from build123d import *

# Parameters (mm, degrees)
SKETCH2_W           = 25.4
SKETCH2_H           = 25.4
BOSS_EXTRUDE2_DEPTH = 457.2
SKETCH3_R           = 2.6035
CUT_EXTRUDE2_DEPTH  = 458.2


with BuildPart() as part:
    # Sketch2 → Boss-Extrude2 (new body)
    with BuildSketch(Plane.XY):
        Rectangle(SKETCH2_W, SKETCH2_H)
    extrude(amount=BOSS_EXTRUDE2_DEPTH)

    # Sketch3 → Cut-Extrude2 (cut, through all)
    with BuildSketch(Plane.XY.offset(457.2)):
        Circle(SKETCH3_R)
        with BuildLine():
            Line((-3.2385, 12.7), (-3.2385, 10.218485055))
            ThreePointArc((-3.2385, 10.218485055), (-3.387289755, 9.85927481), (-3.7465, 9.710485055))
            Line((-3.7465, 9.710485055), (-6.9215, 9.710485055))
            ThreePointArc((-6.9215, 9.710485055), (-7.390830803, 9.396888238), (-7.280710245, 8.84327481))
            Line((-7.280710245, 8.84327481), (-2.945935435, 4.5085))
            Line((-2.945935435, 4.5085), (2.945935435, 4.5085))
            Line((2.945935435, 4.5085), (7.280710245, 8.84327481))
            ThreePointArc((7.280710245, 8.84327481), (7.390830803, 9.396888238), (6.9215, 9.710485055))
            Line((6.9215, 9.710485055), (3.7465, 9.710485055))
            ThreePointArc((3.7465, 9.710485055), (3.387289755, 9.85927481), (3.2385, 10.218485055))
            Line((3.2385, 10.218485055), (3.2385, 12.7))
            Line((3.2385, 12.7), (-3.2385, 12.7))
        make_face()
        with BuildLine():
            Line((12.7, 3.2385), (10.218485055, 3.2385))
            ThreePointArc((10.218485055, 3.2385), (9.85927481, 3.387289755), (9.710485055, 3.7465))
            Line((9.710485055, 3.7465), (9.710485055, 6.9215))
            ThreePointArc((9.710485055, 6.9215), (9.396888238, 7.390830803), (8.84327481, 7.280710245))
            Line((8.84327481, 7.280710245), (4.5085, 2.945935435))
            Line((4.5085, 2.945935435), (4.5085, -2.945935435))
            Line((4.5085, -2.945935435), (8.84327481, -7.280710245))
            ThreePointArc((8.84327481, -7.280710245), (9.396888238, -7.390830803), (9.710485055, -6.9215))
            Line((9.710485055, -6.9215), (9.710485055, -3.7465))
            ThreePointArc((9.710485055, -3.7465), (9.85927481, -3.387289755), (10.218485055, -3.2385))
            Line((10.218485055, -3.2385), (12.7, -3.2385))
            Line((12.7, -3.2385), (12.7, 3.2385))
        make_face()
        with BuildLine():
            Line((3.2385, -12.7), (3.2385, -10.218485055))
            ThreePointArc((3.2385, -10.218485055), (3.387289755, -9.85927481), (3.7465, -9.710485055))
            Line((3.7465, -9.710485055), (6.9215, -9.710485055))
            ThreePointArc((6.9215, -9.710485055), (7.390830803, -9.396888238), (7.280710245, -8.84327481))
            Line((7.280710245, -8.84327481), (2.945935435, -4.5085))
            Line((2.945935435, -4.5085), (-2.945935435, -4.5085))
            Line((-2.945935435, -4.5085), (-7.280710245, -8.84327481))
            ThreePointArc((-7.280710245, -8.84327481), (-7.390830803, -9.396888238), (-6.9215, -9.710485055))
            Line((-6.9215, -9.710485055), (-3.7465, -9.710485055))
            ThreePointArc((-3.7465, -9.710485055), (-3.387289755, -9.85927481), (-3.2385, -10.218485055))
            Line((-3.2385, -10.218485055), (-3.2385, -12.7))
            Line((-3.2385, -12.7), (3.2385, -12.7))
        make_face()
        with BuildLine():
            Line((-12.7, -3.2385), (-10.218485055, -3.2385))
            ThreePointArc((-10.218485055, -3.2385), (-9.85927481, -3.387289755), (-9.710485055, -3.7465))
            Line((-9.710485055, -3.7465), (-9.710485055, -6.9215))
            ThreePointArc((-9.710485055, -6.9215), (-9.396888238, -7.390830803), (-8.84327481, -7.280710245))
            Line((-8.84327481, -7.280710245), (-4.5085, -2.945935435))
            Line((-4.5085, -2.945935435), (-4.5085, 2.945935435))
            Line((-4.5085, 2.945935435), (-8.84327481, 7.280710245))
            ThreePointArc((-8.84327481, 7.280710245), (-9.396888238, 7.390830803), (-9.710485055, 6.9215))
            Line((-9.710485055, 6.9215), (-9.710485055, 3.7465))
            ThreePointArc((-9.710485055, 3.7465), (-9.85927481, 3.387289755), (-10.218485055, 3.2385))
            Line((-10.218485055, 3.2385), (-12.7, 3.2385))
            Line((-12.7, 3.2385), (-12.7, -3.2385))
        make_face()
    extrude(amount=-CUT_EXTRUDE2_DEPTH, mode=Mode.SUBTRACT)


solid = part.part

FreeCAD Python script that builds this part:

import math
import FreeCAD as App
import Part
import Sketcher

V = App.Vector
Q = App.Units.Quantity


def add_polygon(sketch, points):
    """Adds a closed chain of lines whose ends are joined by coincident constraints."""
    first, n = sketch.GeometryCount, len(points)
    for a, b in zip(points, points[1:] + points[:1]):
        sketch.addGeometry(Part.LineSegment(App.Vector(*a, 0), App.Vector(*b, 0)), False)
    for i in range(n):
        sketch.addConstraint(Sketcher.Constraint("Coincident", first + i, 2, first + (i + 1) % n, 1))

doc = App.newDocument("Part")
body = doc.addObject("PartDesign::Body", "Body")

sketch1 = body.newObject("Sketcher::SketchObject", "Sketch")
sketch1.AttachmentSupport = (doc.getObject("XY_Plane"), [""])
sketch1.MapMode = "FlatFace"
add_polygon(sketch1, [(-12.7, 12.7), (-12.7, -12.7), (12.7, -12.7), (12.7, 12.7)])
sketch1.addConstraint([
    Sketcher.Constraint("Vertical", 0),
    Sketcher.Constraint("Horizontal", 1),
    Sketcher.Constraint("Vertical", 2),
    Sketcher.Constraint("Horizontal", 3),
    Sketcher.Constraint("Symmetric", 0, 2, 2, 2, -1, 1),
    Sketcher.Constraint("Equal", 3, 0),
    Sketcher.Constraint("DistanceX", 1, 1, 1, 2, Q("1 in")),
])
pad1 = body.newObject("PartDesign::Pad", "Pad")
pad1.Profile = sketch1
pad1.Length = Q("18 in")

sketch2 = body.newObject("Sketcher::SketchObject", "Sketch001")
sketch2.AttachmentSupport = (doc.getObject("XY_Plane"), [""])
sketch2.MapMode = "FlatFace"
sketch2.AttachmentOffset = App.Placement(V(0, 0, 18 * 25.4), App.Rotation())
sketch2.addGeometry([
    Part.Circle(V(0, 0, 0), V(0, 0, 1), 2.6035),
    Part.LineSegment(V(-3.2385, 12.7, 0), V(-3.2385, 10.218485, 0)),
    Part.ArcOfCircle(Part.Circle(V(-3.7465, 10.218485, 0), V(0, 0, 1), 0.508), math.radians(-90), math.radians(0)),
    Part.LineSegment(V(-3.7465, 9.710485, 0), V(-6.9215, 9.710485, 0)),
    Part.ArcOfCircle(Part.Circle(V(-6.9215, 9.202485, 0), V(0, 0, 1), 0.508), math.radians(90), math.radians(225)),
    Part.LineSegment(V(-7.28071, 8.843275, 0), V(-2.945935, 4.5085, 0)),
    Part.LineSegment(V(-2.945935, 4.5085, 0), V(2.945935, 4.5085, 0)),
    Part.LineSegment(V(2.945935, 4.5085, 0), V(7.28071, 8.843275, 0)),
    Part.ArcOfCircle(Part.Circle(V(6.9215, 9.202485, 0), V(0, 0, 1), 0.508), math.radians(-45), math.radians(90)),
    Part.LineSegment(V(6.9215, 9.710485, 0), V(3.7465, 9.710485, 0)),
    Part.ArcOfCircle(Part.Circle(V(3.7465, 10.218485, 0), V(0, 0, 1), 0.508), math.radians(180), math.radians(270)),
    Part.LineSegment(V(3.2385, 10.218485, 0), V(3.2385, 12.7, 0)),
    Part.LineSegment(V(3.2385, 12.7, 0), V(-3.2385, 12.7, 0)),
    Part.LineSegment(V(12.7, 3.2385, 0), V(10.218485, 3.2385, 0)),
    Part.ArcOfCircle(Part.Circle(V(10.218485, 3.7465, 0), V(0, 0, 1), 0.508), math.radians(180), math.radians(270)),
    Part.LineSegment(V(9.710485, 3.7465, 0), V(9.710485, 6.9215, 0)),
    Part.ArcOfCircle(Part.Circle(V(9.202485, 6.9215, 0), V(0, 0, 1), 0.508), math.radians(0), math.radians(135)),
    Part.LineSegment(V(8.843275, 7.28071, 0), V(4.5085, 2.945935, 0)),
    Part.LineSegment(V(4.5085, 2.945935, 0), V(4.5085, -2.945935, 0)),
    Part.LineSegment(V(4.5085, -2.945935, 0), V(8.843275, -7.28071, 0)),
    Part.ArcOfCircle(Part.Circle(V(9.202485, -6.9215, 0), V(0, 0, 1), 0.508), math.radians(-135), math.radians(0)),
    Part.LineSegment(V(9.710485, -6.9215, 0), V(9.710485, -3.7465, 0)),
    Part.ArcOfCircle(Part.Circle(V(10.218485, -3.7465, 0), V(0, 0, 1), 0.508), math.radians(90), math.radians(180)),
    Part.LineSegment(V(10.218485, -3.2385, 0), V(12.7, -3.2385, 0)),
    Part.LineSegment(V(12.7, -3.2385, 0), V(12.7, 3.2385, 0)),
    Part.LineSegment(V(3.2385, -12.7, 0), V(3.2385, -10.218485, 0)),
    Part.ArcOfCircle(Part.Circle(V(3.7465, -10.218485, 0), V(0, 0, 1), 0.508), math.radians(90), math.radians(180)),
    Part.LineSegment(V(3.7465, -9.710485, 0), V(6.9215, -9.710485, 0)),
    Part.ArcOfCircle(Part.Circle(V(6.9215, -9.202485, 0), V(0, 0, 1), 0.508), math.radians(-90), math.radians(45)),
    Part.LineSegment(V(7.28071, -8.843275, 0), V(2.945935, -4.5085, 0)),
    Part.LineSegment(V(2.945935, -4.5085, 0), V(-2.945935, -4.5085, 0)),
    Part.LineSegment(V(-2.945935, -4.5085, 0), V(-7.28071, -8.843275, 0)),
    Part.ArcOfCircle(Part.Circle(V(-6.9215, -9.202485, 0), V(0, 0, 1), 0.508), math.radians(135), math.radians(270)),
    Part.LineSegment(V(-6.9215, -9.710485, 0), V(-3.7465, -9.710485, 0)),
    Part.ArcOfCircle(Part.Circle(V(-3.7465, -10.218485, 0), V(0, 0, 1), 0.508), math.radians(0), math.radians(90)),
    Part.LineSegment(V(-3.2385, -10.218485, 0), V(-3.2385, -12.7, 0)),
    Part.LineSegment(V(-3.2385, -12.7, 0), V(3.2385, -12.7, 0)),
    Part.LineSegment(V(-12.7, -3.2385, 0), V(-10.218485, -3.2385, 0)),
    Part.ArcOfCircle(Part.Circle(V(-10.218485, -3.7465, 0), V(0, 0, 1), 0.508), math.radians(0), math.radians(90)),
    Part.LineSegment(V(-9.710485, -3.7465, 0), V(-9.710485, -6.9215, 0)),
    Part.ArcOfCircle(Part.Circle(V(-9.202485, -6.9215, 0), V(0, 0, 1), 0.508), math.radians(180), math.radians(315)),
    Part.LineSegment(V(-8.843275, -7.28071, 0), V(-4.5085, -2.945935, 0)),
    Part.LineSegment(V(-4.5085, -2.945935, 0), V(-4.5085, 2.945935, 0)),
    Part.LineSegment(V(-4.5085, 2.945935, 0), V(-8.843275, 7.28071, 0)),
    Part.ArcOfCircle(Part.Circle(V(-9.202485, 6.9215, 0), V(0, 0, 1), 0.508), math.radians(45), math.radians(180)),
    Part.LineSegment(V(-9.710485, 6.9215, 0), V(-9.710485, 3.7465, 0)),
    Part.ArcOfCircle(Part.Circle(V(-10.218485, 3.7465, 0), V(0, 0, 1), 0.508), math.radians(-90), math.radians(0)),
    Part.LineSegment(V(-10.218485, 3.2385, 0), V(-12.7, 3.2385, 0)),
    Part.LineSegment(V(-12.7, 3.2385, 0), V(-12.7, -3.2385, 0)),
], False)
sketch2.addConstraint([
    Sketcher.Constraint("Tangent", 1, 2, 2, 2),
    Sketcher.Constraint("Tangent", 2, 1, 3, 1),
    Sketcher.Constraint("Tangent", 3, 2, 4, 1),
    Sketcher.Constraint("Tangent", 4, 2, 5, 1),
    Sketcher.Constraint("Coincident", 5, 2, 6, 1),
    Sketcher.Constraint("Coincident", 6, 2, 7, 1),
    Sketcher.Constraint("Tangent", 7, 2, 8, 1),
    Sketcher.Constraint("Tangent", 8, 2, 9, 1),
    Sketcher.Constraint("Tangent", 9, 2, 10, 2),
    Sketcher.Constraint("Tangent", 10, 1, 11, 1),
    Sketcher.Constraint("Coincident", 11, 2, 12, 1),
    Sketcher.Constraint("Coincident", 12, 2, 1, 1),
    Sketcher.Constraint("Tangent", 13, 2, 14, 2),
    Sketcher.Constraint("Tangent", 14, 1, 15, 1),
    Sketcher.Constraint("Tangent", 15, 2, 16, 1),
    Sketcher.Constraint("Tangent", 16, 2, 17, 1),
    Sketcher.Constraint("Coincident", 17, 2, 18, 1),
    Sketcher.Constraint("Coincident", 18, 2, 19, 1),
    Sketcher.Constraint("Tangent", 19, 2, 20, 1),
    Sketcher.Constraint("Tangent", 20, 2, 21, 1),
    Sketcher.Constraint("Tangent", 21, 2, 22, 2),
    Sketcher.Constraint("Tangent", 22, 1, 23, 1),
    Sketcher.Constraint("Coincident", 23, 2, 24, 1),
    Sketcher.Constraint("Coincident", 24, 2, 13, 1),
    Sketcher.Constraint("Tangent", 25, 2, 26, 2),
    Sketcher.Constraint("Tangent", 26, 1, 27, 1),
    Sketcher.Constraint("Tangent", 27, 2, 28, 1),
    Sketcher.Constraint("Tangent", 28, 2, 29, 1),
    Sketcher.Constraint("Coincident", 29, 2, 30, 1),
    Sketcher.Constraint("Coincident", 30, 2, 31, 1),
    Sketcher.Constraint("Tangent", 31, 2, 32, 1),
    Sketcher.Constraint("Tangent", 32, 2, 33, 1),
    Sketcher.Constraint("Tangent", 33, 2, 34, 2),
    Sketcher.Constraint("Tangent", 34, 1, 35, 1),
    Sketcher.Constraint("Coincident", 35, 2, 36, 1),
    Sketcher.Constraint("Coincident", 36, 2, 25, 1),
    Sketcher.Constraint("Tangent", 37, 2, 38, 2),
    Sketcher.Constraint("Tangent", 38, 1, 39, 1),
    Sketcher.Constraint("Tangent", 39, 2, 40, 1),
    Sketcher.Constraint("Tangent", 40, 2, 41, 1),
    Sketcher.Constraint("Coincident", 41, 2, 42, 1),
    Sketcher.Constraint("Coincident", 42, 2, 43, 1),
    Sketcher.Constraint("Tangent", 43, 2, 44, 1),
    Sketcher.Constraint("Tangent", 44, 2, 45, 1),
    Sketcher.Constraint("Tangent", 45, 2, 46, 2),
    Sketcher.Constraint("Tangent", 46, 1, 47, 1),
    Sketcher.Constraint("Coincident", 47, 2, 48, 1),
    Sketcher.Constraint("Coincident", 48, 2, 37, 1),
    Sketcher.Constraint("Vertical", 1),
    Sketcher.Constraint("Horizontal", 3),
    Sketcher.Constraint("Horizontal", 6),
    Sketcher.Constraint("Horizontal", 9),
    Sketcher.Constraint("Vertical", 11),
    Sketcher.Constraint("Horizontal", 12),
    Sketcher.Constraint("Horizontal", 13),
    Sketcher.Constraint("Vertical", 15),
    Sketcher.Constraint("Vertical", 18),
    Sketcher.Constraint("Vertical", 21),
    Sketcher.Constraint("Horizontal", 23),
    Sketcher.Constraint("Vertical", 24),
    Sketcher.Constraint("Vertical", 25),
    Sketcher.Constraint("Horizontal", 27),
    Sketcher.Constraint("Horizontal", 30),
    Sketcher.Constraint("Horizontal", 33),
    Sketcher.Constraint("Vertical", 35),
    Sketcher.Constraint("Horizontal", 36),
    Sketcher.Constraint("Horizontal", 37),
    Sketcher.Constraint("Vertical", 39),
    Sketcher.Constraint("Vertical", 42),
    Sketcher.Constraint("Vertical", 45),
    Sketcher.Constraint("Horizontal", 47),
    Sketcher.Constraint("Vertical", 48),
    Sketcher.Constraint("Coincident", 0, 3, -1, 1),
    Sketcher.Constraint("Equal", 2, 4),
    Sketcher.Constraint("Equal", 4, 8),
    Sketcher.Constraint("Equal", 8, 10),
    Sketcher.Constraint("Equal", 10, 14),
    Sketcher.Constraint("Equal", 14, 16),
    Sketcher.Constraint("Equal", 16, 20),
    Sketcher.Constraint("Equal", 20, 22),
    Sketcher.Constraint("Equal", 22, 26),
    Sketcher.Constraint("Equal", 26, 28),
    Sketcher.Constraint("Equal", 28, 32),
    Sketcher.Constraint("Equal", 32, 34),
    Sketcher.Constraint("Equal", 34, 38),
    Sketcher.Constraint("Equal", 38, 40),
    Sketcher.Constraint("Equal", 40, 44),
    Sketcher.Constraint("Equal", 44, 46),
    Sketcher.Constraint("Symmetric", 2, 3, 26, 3, -1, 1),
    Sketcher.Constraint("Symmetric", 8, 3, 32, 3, -1, 1),
    Sketcher.Constraint("Symmetric", 14, 3, 38, 3, -1, 1),
    Sketcher.Constraint("Symmetric", 20, 3, 44, 3, -1, 1),
    Sketcher.Constraint("Symmetric", 4, 2, 28, 2, -1, 1),
    Sketcher.Constraint("Symmetric", 6, 2, 30, 2, -1, 1),
    Sketcher.Constraint("Symmetric", 11, 2, 35, 2, -1, 1),
    Sketcher.Constraint("Symmetric", 16, 2, 40, 2, -1, 1),
    Sketcher.Constraint("Symmetric", 18, 2, 42, 2, -1, 1),
    Sketcher.Constraint("Symmetric", 23, 2, 47, 2, -1, 1),
    Sketcher.Constraint("Symmetric", 4, 3, 8, 3, -2),
    Sketcher.Constraint("Symmetric", 22, 3, 38, 3, -2),
    Sketcher.Constraint("Symmetric", 19, 2, 40, 2, -2),
    Sketcher.Constraint("Perpendicular", 5, 7),
    Sketcher.Constraint("Parallel", 7, 17),
    Sketcher.Constraint("Perpendicular", 17, 19),
    Sketcher.Constraint("Vertical", 10, 3, 26, 3),
    Sketcher.Constraint("Equal", 47, 1),
    Sketcher.Constraint("Equal", 33, 15),
    Sketcher.Constraint("Equal", 30, 18),
    Sketcher.Constraint("Equal", 36, 24),
    Sketcher.Constraint("Radius", 2, Q("0.02 in")),
    Sketcher.Constraint("Diameter", 0, Q("0.205 in")),
    Sketcher.Constraint("DistanceY", -1, 1, 11, 2, Q("0.5 in")),
    Sketcher.Constraint("DistanceX", -1, 1, 23, 2, Q("0.5 in")),
    Sketcher.Constraint("DistanceX", 3, 2, 3, 1, Q("0.125 in")),
    Sketcher.Constraint("DistanceX", 12, 2, 12, 1, Q("0.255 in")),
    Sketcher.Constraint("DistanceY", -1, 1, 5, 2, Q("0.1775 in")),
    Sketcher.Constraint("DistanceX", 6, 1, 6, 2, Q("5.891871 mm")),
])
pocket1 = body.newObject("PartDesign::Pocket", "Pocket")
pocket1.Profile = sketch2
pocket1.Type = "ThroughAll"

doc.recompute()
